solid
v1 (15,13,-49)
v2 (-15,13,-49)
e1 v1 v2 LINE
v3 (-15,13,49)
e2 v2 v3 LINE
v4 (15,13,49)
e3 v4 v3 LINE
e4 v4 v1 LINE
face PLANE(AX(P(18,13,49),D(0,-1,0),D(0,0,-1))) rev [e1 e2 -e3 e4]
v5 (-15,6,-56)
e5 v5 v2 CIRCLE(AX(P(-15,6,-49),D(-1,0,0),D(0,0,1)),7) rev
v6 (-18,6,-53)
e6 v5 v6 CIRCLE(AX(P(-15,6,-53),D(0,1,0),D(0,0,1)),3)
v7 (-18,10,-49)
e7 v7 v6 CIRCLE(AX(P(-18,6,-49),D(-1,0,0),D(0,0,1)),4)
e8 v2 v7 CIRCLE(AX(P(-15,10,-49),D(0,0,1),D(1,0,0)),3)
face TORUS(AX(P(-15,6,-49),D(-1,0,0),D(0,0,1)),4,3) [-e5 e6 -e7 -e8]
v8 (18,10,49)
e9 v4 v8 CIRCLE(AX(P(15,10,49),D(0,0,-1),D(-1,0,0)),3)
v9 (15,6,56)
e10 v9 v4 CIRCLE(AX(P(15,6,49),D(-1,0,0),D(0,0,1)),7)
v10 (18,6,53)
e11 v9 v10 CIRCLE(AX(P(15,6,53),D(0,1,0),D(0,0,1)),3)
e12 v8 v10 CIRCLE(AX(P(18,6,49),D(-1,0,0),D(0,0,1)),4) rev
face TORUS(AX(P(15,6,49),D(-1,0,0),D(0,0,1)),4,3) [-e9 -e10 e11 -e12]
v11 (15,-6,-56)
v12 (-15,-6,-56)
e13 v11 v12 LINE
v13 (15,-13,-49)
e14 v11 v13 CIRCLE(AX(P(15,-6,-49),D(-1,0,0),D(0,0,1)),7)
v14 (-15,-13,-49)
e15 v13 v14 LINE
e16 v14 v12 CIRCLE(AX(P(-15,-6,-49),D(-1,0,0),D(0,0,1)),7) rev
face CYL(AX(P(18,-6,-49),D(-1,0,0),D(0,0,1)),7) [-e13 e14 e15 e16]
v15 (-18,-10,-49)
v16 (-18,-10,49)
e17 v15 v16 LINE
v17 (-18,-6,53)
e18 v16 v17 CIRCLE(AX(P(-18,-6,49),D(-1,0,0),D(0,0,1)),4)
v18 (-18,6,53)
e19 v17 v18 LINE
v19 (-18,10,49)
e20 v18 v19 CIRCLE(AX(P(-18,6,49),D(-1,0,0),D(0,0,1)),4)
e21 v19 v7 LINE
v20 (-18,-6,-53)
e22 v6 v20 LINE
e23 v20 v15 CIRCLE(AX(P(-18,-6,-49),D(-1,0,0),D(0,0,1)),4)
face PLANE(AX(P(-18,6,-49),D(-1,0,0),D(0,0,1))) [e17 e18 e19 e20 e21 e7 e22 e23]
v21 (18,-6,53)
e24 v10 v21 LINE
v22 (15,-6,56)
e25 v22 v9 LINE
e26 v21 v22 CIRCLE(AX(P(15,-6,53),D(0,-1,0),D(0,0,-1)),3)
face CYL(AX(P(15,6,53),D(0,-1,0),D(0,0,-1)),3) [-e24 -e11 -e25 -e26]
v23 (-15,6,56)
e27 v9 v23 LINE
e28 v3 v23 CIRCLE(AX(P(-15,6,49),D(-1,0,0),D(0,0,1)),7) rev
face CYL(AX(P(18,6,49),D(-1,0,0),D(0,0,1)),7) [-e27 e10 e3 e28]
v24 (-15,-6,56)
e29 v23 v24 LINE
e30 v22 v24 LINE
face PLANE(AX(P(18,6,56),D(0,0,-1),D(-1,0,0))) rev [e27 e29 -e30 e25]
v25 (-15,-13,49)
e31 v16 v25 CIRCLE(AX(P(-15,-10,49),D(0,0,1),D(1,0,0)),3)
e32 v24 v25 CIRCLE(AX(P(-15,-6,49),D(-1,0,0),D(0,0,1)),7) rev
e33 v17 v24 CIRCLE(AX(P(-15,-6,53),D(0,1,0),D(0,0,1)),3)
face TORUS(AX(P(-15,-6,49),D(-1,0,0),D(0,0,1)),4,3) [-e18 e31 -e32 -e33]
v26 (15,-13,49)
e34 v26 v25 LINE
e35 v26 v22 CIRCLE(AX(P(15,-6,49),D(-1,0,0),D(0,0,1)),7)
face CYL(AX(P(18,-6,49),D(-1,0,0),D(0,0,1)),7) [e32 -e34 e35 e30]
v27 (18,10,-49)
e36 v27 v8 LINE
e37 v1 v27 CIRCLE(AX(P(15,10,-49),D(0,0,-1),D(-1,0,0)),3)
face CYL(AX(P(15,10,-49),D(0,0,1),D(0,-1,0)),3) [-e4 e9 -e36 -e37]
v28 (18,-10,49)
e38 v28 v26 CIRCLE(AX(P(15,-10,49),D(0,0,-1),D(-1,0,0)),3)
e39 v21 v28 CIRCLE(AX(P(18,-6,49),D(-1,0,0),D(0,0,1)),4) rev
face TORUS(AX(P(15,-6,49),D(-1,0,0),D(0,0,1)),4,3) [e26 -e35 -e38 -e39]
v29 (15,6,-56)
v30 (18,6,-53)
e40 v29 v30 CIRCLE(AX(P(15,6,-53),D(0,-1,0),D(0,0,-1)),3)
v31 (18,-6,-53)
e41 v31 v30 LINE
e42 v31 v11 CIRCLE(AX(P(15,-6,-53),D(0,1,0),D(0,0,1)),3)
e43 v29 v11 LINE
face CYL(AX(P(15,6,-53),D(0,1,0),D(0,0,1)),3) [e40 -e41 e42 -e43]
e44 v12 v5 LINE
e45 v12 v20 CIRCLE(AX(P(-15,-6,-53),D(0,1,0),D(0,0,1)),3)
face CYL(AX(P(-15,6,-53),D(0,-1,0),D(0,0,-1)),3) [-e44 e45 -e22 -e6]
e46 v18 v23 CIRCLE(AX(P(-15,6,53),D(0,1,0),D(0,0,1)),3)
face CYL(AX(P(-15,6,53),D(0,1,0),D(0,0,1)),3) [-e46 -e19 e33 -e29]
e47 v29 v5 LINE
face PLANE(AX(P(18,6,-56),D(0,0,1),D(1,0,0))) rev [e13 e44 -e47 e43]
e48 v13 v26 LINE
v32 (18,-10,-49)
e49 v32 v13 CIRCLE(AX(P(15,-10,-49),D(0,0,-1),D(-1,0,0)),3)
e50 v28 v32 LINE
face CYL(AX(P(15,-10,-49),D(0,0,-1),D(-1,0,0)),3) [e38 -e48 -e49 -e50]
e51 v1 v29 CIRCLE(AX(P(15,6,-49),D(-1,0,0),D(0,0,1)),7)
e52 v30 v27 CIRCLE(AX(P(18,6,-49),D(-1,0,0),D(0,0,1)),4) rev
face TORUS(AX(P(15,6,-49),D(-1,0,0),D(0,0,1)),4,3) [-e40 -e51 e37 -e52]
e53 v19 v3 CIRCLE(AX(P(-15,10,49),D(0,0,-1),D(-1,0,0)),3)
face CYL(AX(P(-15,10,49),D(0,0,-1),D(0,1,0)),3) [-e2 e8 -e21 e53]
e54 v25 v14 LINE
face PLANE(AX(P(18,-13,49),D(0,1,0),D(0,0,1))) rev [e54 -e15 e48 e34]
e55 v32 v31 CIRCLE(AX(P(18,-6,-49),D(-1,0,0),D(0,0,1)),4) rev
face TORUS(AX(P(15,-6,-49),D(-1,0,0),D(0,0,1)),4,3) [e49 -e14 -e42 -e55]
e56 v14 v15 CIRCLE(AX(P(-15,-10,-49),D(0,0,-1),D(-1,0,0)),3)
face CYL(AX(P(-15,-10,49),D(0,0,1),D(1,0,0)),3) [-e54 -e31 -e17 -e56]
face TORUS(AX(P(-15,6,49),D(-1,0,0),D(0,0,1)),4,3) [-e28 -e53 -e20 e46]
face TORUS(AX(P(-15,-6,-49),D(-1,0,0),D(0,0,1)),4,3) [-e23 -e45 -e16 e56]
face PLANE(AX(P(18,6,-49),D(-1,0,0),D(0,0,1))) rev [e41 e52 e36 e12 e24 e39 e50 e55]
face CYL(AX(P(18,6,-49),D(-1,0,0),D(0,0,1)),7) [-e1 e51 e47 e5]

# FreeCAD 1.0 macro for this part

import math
import FreeCAD as App
import Part
import Sketcher
from FreeCAD import Vector
Q = App.Units.Quantity


def edges_at(feature, points):
    """Names of the edges that pass closest to the given points."""
    edges = feature.Shape.Edges
    near = lambda p: min(range(len(edges)), key=lambda i: edges[i].distToShape(Part.Vertex(*p))[0])
    return sorted({f"Edge{near(p) + 1}" for p in points})

doc = App.newDocument("Part")
body = doc.addObject("PartDesign::Body", "Body")

# Sketch on YZ plane
sketch1 = doc.addObject("Sketcher::SketchObject", "Sketch")
body.addObject(sketch1)
sketch1.AttachmentSupport = (doc.YZ_Plane, [""])
sketch1.MapMode = "FlatFace"
sketch1.addGeometry([
    Part.LineSegment(Vector(13, -49, 0), Vector(13, 49, 0)),  # 0
    Part.ArcOfCircle(Part.Circle(Vector(6, 49, 0), Vector(0, 0, 1), 7), math.radians(0), math.radians(90)),  # 1
    Part.LineSegment(Vector(6, 56, 0), Vector(-6, 56, 0)),  # 2
    Part.ArcOfCircle(Part.Circle(Vector(-6, 49, 0), Vector(0, 0, 1), 7), math.radians(90), math.radians(180)),  # 3
    Part.LineSegment(Vector(-13, 49, 0), Vector(-13, -49, 0)),  # 4
    Part.ArcOfCircle(Part.Circle(Vector(-6, -49, 0), Vector(0, 0, 1), 7), math.radians(-180), math.radians(-90)),  # 5
    Part.LineSegment(Vector(-6, -56, 0), Vector(6, -56, 0)),  # 6
    Part.ArcOfCircle(Part.Circle(Vector(6, -49, 0), Vector(0, 0, 1), 7), math.radians(-90), math.radians(0)),  # 7
], False)
sketch1.addConstraint([
    Sketcher.Constraint("Tangent", 0, 2, 1, 1),
    Sketcher.Constraint("Tangent", 1, 2, 2, 1),
    Sketcher.Constraint("Tangent", 2, 2, 3, 1),
    Sketcher.Constraint("Tangent", 3, 2, 4, 1),
    Sketcher.Constraint("Tangent", 4, 2, 5, 1),
    Sketcher.Constraint("Tangent", 5, 2, 6, 1),
    Sketcher.Constraint("Tangent", 6, 2, 7, 1),
    Sketcher.Constraint("Tangent", 7, 2, 0, 1),
    Sketcher.Constraint("Vertical", 0),
    Sketcher.Constraint("Horizontal", 2),
    Sketcher.Constraint("Vertical", 4),
    Sketcher.Constraint("Horizontal", 6),
    Sketcher.Constraint("Equal", 1, 3),
    Sketcher.Constraint("Equal", 3, 5),
    Sketcher.Constraint("Equal", 5, 7),
    Sketcher.Constraint("Symmetric", 1, 3, 5, 3, -1, 1),
    Sketcher.Constraint("Radius", 1, Q("7 mm")),
    Sketcher.Constraint("DistanceX", 2, 2, 2, 1, Q("12 mm")),
    Sketcher.Constraint("DistanceY", 0, 1, 0, 2, Q("98 mm")),
])
pad1 = doc.addObject("PartDesign::Pad", "Pad")
body.addObject(pad1)
pad1.Profile = sketch1
pad1.Length = 36
pad1.Midplane = True
doc.recompute()

fillet = doc.addObject("PartDesign::Fillet", "Fillet")
body.addObject(fillet)
fillet.Base = (pad1, edges_at(pad1, [
    (18, 10.95, 53.95),
    (-18, 13, 0),
    (-18, 10.95, -53.95),
    (18, 0, 56),
    (18, -10.95, 53.95),
    (18, -13, 0),
    (18, -10.95, -53.95),
    (18, 0, -56),
    (18, 10.95, -53.95),
    (18, 13, 0),
    (-18, 0, -56),
    (-18, -10.95, -53.95),
    (-18, -13, 0),
    (-18, -10.95, 53.95),
    (-18, 0, 56),
    (-18, 10.95, 53.95),
]))
fillet.Radius = 3

doc.recompute()
